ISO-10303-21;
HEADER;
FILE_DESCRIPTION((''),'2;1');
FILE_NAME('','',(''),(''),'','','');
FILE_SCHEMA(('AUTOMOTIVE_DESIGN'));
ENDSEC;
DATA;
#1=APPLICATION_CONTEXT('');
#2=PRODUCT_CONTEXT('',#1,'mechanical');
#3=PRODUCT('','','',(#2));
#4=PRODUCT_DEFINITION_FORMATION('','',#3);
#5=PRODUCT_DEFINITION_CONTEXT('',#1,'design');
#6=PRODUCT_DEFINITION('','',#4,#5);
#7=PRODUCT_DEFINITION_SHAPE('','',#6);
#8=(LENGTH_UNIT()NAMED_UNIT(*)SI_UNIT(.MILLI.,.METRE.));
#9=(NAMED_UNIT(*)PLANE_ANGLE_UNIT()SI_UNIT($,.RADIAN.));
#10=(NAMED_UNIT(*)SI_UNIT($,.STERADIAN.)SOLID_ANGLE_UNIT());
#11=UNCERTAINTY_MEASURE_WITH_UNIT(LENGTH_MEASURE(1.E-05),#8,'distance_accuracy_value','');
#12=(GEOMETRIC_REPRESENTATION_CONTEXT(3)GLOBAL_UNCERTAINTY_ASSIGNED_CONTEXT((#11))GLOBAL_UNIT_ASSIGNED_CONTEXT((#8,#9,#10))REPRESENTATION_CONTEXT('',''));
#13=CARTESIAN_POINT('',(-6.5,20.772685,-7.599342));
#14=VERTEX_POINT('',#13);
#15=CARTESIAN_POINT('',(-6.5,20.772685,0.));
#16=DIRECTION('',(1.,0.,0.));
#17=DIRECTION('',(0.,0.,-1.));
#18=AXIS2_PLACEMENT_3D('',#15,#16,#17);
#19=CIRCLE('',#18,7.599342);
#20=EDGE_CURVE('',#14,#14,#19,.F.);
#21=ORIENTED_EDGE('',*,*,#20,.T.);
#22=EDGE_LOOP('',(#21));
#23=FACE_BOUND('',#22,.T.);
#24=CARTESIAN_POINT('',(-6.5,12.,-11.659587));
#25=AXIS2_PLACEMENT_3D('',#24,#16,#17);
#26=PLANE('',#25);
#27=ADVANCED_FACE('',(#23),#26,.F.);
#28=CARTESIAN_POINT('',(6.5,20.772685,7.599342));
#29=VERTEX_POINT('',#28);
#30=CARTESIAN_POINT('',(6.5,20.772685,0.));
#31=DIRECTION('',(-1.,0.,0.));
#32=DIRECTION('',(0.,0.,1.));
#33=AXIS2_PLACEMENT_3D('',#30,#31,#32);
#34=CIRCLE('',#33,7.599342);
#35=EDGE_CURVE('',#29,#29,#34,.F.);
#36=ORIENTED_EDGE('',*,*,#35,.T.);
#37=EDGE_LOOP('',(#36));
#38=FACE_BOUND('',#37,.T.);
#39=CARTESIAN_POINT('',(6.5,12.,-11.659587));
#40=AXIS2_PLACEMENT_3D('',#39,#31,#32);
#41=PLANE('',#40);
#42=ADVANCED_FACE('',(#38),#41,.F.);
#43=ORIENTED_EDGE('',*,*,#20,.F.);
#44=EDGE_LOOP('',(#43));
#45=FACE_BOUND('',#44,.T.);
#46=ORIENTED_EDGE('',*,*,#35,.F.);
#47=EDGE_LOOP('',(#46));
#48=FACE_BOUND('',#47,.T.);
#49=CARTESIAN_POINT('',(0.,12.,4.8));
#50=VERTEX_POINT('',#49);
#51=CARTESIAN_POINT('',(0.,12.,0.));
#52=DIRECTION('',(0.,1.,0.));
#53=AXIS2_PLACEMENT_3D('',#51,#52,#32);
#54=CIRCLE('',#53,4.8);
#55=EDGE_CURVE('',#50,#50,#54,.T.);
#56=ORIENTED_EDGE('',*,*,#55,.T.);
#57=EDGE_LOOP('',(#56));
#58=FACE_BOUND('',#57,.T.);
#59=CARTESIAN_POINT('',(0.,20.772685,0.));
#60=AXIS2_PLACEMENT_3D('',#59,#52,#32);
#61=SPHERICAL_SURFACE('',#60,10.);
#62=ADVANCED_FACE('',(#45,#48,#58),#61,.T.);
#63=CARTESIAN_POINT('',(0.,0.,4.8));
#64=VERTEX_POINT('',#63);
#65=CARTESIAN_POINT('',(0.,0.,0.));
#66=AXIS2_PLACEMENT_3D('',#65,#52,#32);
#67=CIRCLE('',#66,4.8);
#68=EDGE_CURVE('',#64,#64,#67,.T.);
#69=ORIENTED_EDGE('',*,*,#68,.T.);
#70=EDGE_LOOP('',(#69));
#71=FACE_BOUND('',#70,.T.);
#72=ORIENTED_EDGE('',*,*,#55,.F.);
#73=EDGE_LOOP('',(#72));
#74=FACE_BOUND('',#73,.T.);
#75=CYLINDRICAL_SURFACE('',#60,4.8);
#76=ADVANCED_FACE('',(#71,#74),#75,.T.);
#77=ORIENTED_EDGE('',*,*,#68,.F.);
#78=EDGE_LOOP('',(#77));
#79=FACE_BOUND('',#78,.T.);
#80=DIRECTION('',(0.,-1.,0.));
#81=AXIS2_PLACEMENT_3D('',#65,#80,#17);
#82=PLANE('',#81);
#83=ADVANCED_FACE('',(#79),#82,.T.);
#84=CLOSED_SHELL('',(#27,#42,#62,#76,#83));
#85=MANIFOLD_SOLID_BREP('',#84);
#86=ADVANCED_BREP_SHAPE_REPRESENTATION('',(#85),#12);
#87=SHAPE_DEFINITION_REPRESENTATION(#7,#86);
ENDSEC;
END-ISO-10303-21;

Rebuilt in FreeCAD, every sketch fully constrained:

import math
import FreeCAD as App
import Part
import Sketcher

V = App.Vector


def add_polygon(sketch, points):
    """Adds a closed chain of lines whose ends are joined by coincident constraints."""
    first, n = sketch.GeometryCount, len(points)
    for a, b in zip(points, points[1:] + points[:1]):
        sketch.addGeometry(Part.LineSegment(App.Vector(*a, 0), App.Vector(*b, 0)), False)
    for i in range(n):
        sketch.addConstraint(Sketcher.Constraint("Coincident", first + i, 2, first + (i + 1) % n, 1))

doc = App.newDocument("Part")
body = doc.addObject("PartDesign::Body", "Body")

sketch1 = body.newObject("Sketcher::SketchObject", "Sketch")
sketch1.AttachmentSupport = (doc.getObject("YZ_Plane"), [""])
sketch1.MapMode = "FlatFace"
sketch1.addGeometry([
    Part.LineSegment(V(0, 4.8, 0), V(0, 0, 0)),
    Part.LineSegment(V(0, 0, 0), V(30.8, 0, 0)),
    Part.ArcOfCircle(Part.Circle(V(20.8, 0, 0), V(0, 0, 1), 10), math.radians(0), math.radians(151)),
    Part.LineSegment(V(12, 4.8, 0), V(0, 4.8, 0)),
], False)
sketch1.addConstraint([
    Sketcher.Constraint("Coincident", 0, 2, 1, 1),
    Sketcher.Constraint("Coincident", 1, 2, 2, 1),
    Sketcher.Constraint("Coincident", 2, 2, 3, 1),
    Sketcher.Constraint("Coincident", 3, 2, 0, 1),
    Sketcher.Constraint("Vertical", 0),
    Sketcher.Constraint("Horizontal", 1),
    Sketcher.Constraint("Horizontal", 3),
    Sketcher.Constraint("Coincident", 0, 2, -1, 1),
    Sketcher.Constraint("PointOnObject", 2, 3, -1),
    Sketcher.Constraint("Radius", 2, 10.0),
    Sketcher.Constraint("DistanceX", 3, 2, 3, 1, 12.0),
    Sketcher.Constraint("DistanceY", 0, 2, 0, 1, 4.8),
])
revolution = body.newObject("PartDesign::Revolution", "Revolution")
revolution.Profile = sketch1
revolution.ReferenceAxis = (sketch1, ["H_Axis"])
revolution.Angle = 360

sketch2 = body.newObject("Sketcher::SketchObject", "Sketch001")
sketch2.AttachmentSupport = (doc.getObject("XZ_Plane"), [""])
sketch2.MapMode = "FlatFace"
sketch2.AttachmentOffset = App.Placement(V(0, 0, -35), App.Rotation())
add_polygon(sketch2, [(-13, -12), (-13, 11), (-6, 11), (-6, -12)])
add_polygon(sketch2, [(6, -12), (6, 11), (13, 11), (13, -12)])
sketch2.addConstraint([
    Sketcher.Constraint("Vertical", 0),
    Sketcher.Constraint("Horizontal", 1),
    Sketcher.Constraint("Vertical", 2),
    Sketcher.Constraint("Horizontal", 3),
    Sketcher.Constraint("Vertical", 4),
    Sketcher.Constraint("Horizontal", 5),
    Sketcher.Constraint("Vertical", 6),
    Sketcher.Constraint("Horizontal", 7),
    Sketcher.Constraint("Symmetric", 1, 2, 4, 2, -2),
    Sketcher.Constraint("Symmetric", 3, 2, 6, 2, -2),
    Sketcher.Constraint("DistanceX", 1, 2, 4, 2, 13.0),
    Sketcher.Constraint("DistanceX", 1, 1, 1, 2, 6.494481),
    Sketcher.Constraint("DistanceY", 0, 1, 0, 2, 22.918025),
    Sketcher.Constraint("DistanceY", -1, 1, 0, 2, 11.258439),
])
pocket1 = body.newObject("PartDesign::Pocket", "Pocket")
pocket1.Profile = sketch2
pocket1.Length = 23
pocket1.Reversed = True

doc.recompute()
